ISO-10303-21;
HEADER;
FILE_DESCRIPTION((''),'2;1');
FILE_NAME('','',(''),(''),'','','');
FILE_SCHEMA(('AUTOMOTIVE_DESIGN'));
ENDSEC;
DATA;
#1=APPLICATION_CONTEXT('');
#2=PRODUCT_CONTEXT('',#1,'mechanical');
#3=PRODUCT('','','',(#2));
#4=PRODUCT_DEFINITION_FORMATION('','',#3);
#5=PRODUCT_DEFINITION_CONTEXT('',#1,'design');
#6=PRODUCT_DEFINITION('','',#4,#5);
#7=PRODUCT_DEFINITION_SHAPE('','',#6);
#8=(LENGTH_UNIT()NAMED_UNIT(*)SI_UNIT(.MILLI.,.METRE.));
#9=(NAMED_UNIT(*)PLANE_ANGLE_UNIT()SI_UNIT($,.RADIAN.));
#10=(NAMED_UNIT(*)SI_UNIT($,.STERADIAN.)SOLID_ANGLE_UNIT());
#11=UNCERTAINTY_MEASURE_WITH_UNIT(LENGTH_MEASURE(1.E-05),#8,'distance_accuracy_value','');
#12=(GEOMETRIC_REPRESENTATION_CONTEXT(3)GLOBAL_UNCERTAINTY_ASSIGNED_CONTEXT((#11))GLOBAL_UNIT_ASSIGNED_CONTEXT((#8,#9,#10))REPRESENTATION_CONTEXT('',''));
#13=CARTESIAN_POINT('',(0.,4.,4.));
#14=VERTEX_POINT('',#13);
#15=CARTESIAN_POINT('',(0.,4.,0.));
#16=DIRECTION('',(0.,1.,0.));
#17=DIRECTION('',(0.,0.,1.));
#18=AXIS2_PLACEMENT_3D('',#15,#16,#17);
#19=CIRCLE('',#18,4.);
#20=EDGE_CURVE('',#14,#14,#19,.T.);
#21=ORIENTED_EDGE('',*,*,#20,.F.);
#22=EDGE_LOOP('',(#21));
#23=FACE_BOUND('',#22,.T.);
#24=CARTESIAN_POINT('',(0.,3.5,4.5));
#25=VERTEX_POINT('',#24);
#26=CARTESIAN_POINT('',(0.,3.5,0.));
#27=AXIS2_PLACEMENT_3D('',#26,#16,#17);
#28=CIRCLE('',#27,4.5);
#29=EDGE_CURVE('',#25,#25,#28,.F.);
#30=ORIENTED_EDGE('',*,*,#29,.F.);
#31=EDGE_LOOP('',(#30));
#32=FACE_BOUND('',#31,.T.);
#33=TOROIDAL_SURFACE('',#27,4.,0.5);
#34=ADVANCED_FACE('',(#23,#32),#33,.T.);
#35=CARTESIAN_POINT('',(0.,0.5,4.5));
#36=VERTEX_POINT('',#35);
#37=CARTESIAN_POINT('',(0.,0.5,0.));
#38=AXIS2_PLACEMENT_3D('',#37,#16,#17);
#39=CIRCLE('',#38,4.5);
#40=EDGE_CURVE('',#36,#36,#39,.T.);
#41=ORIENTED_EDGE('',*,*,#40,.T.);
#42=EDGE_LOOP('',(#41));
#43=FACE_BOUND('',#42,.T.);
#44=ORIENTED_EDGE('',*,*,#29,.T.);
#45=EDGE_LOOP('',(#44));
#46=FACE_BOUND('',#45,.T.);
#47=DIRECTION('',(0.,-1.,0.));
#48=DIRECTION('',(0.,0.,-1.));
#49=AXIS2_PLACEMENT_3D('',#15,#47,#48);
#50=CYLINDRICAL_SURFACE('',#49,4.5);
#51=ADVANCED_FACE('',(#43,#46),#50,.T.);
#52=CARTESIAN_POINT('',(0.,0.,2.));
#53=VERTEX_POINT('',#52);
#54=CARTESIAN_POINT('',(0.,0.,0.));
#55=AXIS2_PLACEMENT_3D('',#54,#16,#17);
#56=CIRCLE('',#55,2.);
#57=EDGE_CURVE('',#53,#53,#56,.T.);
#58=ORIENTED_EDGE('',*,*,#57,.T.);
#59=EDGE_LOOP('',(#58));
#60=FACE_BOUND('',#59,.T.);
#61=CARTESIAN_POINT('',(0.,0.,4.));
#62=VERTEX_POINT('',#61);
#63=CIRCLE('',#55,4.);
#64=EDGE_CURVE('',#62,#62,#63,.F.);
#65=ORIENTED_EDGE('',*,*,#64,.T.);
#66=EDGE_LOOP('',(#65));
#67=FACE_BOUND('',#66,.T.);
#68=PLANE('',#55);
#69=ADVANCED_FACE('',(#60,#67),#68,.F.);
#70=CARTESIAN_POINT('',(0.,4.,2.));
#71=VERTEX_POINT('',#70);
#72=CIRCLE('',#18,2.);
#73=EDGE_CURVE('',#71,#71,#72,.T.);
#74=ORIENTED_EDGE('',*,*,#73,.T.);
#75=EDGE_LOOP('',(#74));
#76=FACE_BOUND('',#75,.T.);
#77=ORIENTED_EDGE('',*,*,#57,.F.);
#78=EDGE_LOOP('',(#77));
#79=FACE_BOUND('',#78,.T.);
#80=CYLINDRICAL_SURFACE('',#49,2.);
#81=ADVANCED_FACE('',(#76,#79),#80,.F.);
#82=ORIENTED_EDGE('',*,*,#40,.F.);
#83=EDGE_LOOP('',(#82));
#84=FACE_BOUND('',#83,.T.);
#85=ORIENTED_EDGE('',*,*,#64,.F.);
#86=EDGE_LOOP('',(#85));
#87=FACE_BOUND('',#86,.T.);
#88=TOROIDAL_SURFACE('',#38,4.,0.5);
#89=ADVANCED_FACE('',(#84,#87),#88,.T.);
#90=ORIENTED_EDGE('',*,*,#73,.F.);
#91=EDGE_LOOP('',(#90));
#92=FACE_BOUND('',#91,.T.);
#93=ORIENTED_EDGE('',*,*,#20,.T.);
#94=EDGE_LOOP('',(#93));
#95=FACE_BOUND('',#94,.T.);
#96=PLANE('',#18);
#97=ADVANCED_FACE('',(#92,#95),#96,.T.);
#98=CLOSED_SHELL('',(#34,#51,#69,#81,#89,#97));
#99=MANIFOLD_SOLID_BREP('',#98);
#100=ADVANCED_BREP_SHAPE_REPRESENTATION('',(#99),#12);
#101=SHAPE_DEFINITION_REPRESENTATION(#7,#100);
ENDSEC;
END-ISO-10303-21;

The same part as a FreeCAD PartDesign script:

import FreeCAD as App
import Part
import Sketcher
Q = App.Units.Quantity


def edges_at(feature, points):
    """Names of the edges that pass closest to the given points."""
    edges = feature.Shape.Edges
    near = lambda p: min(range(len(edges)), key=lambda i: edges[i].distToShape(Part.Vertex(*p))[0])
    return sorted({f"Edge{near(p) + 1}" for p in points})

doc = App.newDocument("Part")
body = doc.addObject("PartDesign::Body", "Body")

sketch1 = body.newObject("Sketcher::SketchObject", "Sketch")
sketch1.AttachmentSupport = (doc.getObject("XZ_Plane"), [""])
sketch1.MapMode = "FlatFace"
sketch1.addGeometry(Part.Circle(App.Vector(0, 0, 0), App.Vector(0, 0, 1), 4.5), False)
sketch1.addGeometry(Part.Circle(App.Vector(0, 0, 0), App.Vector(0, 0, 1), 2), False)
sketch1.addConstraint(Sketcher.Constraint("Coincident", 0, 3, -1, 1))
sketch1.addConstraint(Sketcher.Constraint("Coincident", 1, 3, -1, 1))
sketch1.addConstraint(Sketcher.Constraint("Diameter", 0, Q("9 mm")))
sketch1.addConstraint(Sketcher.Constraint("Diameter", 1, Q("4 mm")))
pad1 = body.newObject("PartDesign::Pad", "Pad")
pad1.Profile = sketch1
pad1.Length = 4
pad1.Reversed = True
doc.recompute()

fillet = body.newObject("PartDesign::Fillet", "Fillet")
fillet.Base = (pad1, edges_at(pad1, [(-4.5, 0, 0), (-4.5, 4, 0)]))
fillet.Radius = 0.5

doc.recompute()
